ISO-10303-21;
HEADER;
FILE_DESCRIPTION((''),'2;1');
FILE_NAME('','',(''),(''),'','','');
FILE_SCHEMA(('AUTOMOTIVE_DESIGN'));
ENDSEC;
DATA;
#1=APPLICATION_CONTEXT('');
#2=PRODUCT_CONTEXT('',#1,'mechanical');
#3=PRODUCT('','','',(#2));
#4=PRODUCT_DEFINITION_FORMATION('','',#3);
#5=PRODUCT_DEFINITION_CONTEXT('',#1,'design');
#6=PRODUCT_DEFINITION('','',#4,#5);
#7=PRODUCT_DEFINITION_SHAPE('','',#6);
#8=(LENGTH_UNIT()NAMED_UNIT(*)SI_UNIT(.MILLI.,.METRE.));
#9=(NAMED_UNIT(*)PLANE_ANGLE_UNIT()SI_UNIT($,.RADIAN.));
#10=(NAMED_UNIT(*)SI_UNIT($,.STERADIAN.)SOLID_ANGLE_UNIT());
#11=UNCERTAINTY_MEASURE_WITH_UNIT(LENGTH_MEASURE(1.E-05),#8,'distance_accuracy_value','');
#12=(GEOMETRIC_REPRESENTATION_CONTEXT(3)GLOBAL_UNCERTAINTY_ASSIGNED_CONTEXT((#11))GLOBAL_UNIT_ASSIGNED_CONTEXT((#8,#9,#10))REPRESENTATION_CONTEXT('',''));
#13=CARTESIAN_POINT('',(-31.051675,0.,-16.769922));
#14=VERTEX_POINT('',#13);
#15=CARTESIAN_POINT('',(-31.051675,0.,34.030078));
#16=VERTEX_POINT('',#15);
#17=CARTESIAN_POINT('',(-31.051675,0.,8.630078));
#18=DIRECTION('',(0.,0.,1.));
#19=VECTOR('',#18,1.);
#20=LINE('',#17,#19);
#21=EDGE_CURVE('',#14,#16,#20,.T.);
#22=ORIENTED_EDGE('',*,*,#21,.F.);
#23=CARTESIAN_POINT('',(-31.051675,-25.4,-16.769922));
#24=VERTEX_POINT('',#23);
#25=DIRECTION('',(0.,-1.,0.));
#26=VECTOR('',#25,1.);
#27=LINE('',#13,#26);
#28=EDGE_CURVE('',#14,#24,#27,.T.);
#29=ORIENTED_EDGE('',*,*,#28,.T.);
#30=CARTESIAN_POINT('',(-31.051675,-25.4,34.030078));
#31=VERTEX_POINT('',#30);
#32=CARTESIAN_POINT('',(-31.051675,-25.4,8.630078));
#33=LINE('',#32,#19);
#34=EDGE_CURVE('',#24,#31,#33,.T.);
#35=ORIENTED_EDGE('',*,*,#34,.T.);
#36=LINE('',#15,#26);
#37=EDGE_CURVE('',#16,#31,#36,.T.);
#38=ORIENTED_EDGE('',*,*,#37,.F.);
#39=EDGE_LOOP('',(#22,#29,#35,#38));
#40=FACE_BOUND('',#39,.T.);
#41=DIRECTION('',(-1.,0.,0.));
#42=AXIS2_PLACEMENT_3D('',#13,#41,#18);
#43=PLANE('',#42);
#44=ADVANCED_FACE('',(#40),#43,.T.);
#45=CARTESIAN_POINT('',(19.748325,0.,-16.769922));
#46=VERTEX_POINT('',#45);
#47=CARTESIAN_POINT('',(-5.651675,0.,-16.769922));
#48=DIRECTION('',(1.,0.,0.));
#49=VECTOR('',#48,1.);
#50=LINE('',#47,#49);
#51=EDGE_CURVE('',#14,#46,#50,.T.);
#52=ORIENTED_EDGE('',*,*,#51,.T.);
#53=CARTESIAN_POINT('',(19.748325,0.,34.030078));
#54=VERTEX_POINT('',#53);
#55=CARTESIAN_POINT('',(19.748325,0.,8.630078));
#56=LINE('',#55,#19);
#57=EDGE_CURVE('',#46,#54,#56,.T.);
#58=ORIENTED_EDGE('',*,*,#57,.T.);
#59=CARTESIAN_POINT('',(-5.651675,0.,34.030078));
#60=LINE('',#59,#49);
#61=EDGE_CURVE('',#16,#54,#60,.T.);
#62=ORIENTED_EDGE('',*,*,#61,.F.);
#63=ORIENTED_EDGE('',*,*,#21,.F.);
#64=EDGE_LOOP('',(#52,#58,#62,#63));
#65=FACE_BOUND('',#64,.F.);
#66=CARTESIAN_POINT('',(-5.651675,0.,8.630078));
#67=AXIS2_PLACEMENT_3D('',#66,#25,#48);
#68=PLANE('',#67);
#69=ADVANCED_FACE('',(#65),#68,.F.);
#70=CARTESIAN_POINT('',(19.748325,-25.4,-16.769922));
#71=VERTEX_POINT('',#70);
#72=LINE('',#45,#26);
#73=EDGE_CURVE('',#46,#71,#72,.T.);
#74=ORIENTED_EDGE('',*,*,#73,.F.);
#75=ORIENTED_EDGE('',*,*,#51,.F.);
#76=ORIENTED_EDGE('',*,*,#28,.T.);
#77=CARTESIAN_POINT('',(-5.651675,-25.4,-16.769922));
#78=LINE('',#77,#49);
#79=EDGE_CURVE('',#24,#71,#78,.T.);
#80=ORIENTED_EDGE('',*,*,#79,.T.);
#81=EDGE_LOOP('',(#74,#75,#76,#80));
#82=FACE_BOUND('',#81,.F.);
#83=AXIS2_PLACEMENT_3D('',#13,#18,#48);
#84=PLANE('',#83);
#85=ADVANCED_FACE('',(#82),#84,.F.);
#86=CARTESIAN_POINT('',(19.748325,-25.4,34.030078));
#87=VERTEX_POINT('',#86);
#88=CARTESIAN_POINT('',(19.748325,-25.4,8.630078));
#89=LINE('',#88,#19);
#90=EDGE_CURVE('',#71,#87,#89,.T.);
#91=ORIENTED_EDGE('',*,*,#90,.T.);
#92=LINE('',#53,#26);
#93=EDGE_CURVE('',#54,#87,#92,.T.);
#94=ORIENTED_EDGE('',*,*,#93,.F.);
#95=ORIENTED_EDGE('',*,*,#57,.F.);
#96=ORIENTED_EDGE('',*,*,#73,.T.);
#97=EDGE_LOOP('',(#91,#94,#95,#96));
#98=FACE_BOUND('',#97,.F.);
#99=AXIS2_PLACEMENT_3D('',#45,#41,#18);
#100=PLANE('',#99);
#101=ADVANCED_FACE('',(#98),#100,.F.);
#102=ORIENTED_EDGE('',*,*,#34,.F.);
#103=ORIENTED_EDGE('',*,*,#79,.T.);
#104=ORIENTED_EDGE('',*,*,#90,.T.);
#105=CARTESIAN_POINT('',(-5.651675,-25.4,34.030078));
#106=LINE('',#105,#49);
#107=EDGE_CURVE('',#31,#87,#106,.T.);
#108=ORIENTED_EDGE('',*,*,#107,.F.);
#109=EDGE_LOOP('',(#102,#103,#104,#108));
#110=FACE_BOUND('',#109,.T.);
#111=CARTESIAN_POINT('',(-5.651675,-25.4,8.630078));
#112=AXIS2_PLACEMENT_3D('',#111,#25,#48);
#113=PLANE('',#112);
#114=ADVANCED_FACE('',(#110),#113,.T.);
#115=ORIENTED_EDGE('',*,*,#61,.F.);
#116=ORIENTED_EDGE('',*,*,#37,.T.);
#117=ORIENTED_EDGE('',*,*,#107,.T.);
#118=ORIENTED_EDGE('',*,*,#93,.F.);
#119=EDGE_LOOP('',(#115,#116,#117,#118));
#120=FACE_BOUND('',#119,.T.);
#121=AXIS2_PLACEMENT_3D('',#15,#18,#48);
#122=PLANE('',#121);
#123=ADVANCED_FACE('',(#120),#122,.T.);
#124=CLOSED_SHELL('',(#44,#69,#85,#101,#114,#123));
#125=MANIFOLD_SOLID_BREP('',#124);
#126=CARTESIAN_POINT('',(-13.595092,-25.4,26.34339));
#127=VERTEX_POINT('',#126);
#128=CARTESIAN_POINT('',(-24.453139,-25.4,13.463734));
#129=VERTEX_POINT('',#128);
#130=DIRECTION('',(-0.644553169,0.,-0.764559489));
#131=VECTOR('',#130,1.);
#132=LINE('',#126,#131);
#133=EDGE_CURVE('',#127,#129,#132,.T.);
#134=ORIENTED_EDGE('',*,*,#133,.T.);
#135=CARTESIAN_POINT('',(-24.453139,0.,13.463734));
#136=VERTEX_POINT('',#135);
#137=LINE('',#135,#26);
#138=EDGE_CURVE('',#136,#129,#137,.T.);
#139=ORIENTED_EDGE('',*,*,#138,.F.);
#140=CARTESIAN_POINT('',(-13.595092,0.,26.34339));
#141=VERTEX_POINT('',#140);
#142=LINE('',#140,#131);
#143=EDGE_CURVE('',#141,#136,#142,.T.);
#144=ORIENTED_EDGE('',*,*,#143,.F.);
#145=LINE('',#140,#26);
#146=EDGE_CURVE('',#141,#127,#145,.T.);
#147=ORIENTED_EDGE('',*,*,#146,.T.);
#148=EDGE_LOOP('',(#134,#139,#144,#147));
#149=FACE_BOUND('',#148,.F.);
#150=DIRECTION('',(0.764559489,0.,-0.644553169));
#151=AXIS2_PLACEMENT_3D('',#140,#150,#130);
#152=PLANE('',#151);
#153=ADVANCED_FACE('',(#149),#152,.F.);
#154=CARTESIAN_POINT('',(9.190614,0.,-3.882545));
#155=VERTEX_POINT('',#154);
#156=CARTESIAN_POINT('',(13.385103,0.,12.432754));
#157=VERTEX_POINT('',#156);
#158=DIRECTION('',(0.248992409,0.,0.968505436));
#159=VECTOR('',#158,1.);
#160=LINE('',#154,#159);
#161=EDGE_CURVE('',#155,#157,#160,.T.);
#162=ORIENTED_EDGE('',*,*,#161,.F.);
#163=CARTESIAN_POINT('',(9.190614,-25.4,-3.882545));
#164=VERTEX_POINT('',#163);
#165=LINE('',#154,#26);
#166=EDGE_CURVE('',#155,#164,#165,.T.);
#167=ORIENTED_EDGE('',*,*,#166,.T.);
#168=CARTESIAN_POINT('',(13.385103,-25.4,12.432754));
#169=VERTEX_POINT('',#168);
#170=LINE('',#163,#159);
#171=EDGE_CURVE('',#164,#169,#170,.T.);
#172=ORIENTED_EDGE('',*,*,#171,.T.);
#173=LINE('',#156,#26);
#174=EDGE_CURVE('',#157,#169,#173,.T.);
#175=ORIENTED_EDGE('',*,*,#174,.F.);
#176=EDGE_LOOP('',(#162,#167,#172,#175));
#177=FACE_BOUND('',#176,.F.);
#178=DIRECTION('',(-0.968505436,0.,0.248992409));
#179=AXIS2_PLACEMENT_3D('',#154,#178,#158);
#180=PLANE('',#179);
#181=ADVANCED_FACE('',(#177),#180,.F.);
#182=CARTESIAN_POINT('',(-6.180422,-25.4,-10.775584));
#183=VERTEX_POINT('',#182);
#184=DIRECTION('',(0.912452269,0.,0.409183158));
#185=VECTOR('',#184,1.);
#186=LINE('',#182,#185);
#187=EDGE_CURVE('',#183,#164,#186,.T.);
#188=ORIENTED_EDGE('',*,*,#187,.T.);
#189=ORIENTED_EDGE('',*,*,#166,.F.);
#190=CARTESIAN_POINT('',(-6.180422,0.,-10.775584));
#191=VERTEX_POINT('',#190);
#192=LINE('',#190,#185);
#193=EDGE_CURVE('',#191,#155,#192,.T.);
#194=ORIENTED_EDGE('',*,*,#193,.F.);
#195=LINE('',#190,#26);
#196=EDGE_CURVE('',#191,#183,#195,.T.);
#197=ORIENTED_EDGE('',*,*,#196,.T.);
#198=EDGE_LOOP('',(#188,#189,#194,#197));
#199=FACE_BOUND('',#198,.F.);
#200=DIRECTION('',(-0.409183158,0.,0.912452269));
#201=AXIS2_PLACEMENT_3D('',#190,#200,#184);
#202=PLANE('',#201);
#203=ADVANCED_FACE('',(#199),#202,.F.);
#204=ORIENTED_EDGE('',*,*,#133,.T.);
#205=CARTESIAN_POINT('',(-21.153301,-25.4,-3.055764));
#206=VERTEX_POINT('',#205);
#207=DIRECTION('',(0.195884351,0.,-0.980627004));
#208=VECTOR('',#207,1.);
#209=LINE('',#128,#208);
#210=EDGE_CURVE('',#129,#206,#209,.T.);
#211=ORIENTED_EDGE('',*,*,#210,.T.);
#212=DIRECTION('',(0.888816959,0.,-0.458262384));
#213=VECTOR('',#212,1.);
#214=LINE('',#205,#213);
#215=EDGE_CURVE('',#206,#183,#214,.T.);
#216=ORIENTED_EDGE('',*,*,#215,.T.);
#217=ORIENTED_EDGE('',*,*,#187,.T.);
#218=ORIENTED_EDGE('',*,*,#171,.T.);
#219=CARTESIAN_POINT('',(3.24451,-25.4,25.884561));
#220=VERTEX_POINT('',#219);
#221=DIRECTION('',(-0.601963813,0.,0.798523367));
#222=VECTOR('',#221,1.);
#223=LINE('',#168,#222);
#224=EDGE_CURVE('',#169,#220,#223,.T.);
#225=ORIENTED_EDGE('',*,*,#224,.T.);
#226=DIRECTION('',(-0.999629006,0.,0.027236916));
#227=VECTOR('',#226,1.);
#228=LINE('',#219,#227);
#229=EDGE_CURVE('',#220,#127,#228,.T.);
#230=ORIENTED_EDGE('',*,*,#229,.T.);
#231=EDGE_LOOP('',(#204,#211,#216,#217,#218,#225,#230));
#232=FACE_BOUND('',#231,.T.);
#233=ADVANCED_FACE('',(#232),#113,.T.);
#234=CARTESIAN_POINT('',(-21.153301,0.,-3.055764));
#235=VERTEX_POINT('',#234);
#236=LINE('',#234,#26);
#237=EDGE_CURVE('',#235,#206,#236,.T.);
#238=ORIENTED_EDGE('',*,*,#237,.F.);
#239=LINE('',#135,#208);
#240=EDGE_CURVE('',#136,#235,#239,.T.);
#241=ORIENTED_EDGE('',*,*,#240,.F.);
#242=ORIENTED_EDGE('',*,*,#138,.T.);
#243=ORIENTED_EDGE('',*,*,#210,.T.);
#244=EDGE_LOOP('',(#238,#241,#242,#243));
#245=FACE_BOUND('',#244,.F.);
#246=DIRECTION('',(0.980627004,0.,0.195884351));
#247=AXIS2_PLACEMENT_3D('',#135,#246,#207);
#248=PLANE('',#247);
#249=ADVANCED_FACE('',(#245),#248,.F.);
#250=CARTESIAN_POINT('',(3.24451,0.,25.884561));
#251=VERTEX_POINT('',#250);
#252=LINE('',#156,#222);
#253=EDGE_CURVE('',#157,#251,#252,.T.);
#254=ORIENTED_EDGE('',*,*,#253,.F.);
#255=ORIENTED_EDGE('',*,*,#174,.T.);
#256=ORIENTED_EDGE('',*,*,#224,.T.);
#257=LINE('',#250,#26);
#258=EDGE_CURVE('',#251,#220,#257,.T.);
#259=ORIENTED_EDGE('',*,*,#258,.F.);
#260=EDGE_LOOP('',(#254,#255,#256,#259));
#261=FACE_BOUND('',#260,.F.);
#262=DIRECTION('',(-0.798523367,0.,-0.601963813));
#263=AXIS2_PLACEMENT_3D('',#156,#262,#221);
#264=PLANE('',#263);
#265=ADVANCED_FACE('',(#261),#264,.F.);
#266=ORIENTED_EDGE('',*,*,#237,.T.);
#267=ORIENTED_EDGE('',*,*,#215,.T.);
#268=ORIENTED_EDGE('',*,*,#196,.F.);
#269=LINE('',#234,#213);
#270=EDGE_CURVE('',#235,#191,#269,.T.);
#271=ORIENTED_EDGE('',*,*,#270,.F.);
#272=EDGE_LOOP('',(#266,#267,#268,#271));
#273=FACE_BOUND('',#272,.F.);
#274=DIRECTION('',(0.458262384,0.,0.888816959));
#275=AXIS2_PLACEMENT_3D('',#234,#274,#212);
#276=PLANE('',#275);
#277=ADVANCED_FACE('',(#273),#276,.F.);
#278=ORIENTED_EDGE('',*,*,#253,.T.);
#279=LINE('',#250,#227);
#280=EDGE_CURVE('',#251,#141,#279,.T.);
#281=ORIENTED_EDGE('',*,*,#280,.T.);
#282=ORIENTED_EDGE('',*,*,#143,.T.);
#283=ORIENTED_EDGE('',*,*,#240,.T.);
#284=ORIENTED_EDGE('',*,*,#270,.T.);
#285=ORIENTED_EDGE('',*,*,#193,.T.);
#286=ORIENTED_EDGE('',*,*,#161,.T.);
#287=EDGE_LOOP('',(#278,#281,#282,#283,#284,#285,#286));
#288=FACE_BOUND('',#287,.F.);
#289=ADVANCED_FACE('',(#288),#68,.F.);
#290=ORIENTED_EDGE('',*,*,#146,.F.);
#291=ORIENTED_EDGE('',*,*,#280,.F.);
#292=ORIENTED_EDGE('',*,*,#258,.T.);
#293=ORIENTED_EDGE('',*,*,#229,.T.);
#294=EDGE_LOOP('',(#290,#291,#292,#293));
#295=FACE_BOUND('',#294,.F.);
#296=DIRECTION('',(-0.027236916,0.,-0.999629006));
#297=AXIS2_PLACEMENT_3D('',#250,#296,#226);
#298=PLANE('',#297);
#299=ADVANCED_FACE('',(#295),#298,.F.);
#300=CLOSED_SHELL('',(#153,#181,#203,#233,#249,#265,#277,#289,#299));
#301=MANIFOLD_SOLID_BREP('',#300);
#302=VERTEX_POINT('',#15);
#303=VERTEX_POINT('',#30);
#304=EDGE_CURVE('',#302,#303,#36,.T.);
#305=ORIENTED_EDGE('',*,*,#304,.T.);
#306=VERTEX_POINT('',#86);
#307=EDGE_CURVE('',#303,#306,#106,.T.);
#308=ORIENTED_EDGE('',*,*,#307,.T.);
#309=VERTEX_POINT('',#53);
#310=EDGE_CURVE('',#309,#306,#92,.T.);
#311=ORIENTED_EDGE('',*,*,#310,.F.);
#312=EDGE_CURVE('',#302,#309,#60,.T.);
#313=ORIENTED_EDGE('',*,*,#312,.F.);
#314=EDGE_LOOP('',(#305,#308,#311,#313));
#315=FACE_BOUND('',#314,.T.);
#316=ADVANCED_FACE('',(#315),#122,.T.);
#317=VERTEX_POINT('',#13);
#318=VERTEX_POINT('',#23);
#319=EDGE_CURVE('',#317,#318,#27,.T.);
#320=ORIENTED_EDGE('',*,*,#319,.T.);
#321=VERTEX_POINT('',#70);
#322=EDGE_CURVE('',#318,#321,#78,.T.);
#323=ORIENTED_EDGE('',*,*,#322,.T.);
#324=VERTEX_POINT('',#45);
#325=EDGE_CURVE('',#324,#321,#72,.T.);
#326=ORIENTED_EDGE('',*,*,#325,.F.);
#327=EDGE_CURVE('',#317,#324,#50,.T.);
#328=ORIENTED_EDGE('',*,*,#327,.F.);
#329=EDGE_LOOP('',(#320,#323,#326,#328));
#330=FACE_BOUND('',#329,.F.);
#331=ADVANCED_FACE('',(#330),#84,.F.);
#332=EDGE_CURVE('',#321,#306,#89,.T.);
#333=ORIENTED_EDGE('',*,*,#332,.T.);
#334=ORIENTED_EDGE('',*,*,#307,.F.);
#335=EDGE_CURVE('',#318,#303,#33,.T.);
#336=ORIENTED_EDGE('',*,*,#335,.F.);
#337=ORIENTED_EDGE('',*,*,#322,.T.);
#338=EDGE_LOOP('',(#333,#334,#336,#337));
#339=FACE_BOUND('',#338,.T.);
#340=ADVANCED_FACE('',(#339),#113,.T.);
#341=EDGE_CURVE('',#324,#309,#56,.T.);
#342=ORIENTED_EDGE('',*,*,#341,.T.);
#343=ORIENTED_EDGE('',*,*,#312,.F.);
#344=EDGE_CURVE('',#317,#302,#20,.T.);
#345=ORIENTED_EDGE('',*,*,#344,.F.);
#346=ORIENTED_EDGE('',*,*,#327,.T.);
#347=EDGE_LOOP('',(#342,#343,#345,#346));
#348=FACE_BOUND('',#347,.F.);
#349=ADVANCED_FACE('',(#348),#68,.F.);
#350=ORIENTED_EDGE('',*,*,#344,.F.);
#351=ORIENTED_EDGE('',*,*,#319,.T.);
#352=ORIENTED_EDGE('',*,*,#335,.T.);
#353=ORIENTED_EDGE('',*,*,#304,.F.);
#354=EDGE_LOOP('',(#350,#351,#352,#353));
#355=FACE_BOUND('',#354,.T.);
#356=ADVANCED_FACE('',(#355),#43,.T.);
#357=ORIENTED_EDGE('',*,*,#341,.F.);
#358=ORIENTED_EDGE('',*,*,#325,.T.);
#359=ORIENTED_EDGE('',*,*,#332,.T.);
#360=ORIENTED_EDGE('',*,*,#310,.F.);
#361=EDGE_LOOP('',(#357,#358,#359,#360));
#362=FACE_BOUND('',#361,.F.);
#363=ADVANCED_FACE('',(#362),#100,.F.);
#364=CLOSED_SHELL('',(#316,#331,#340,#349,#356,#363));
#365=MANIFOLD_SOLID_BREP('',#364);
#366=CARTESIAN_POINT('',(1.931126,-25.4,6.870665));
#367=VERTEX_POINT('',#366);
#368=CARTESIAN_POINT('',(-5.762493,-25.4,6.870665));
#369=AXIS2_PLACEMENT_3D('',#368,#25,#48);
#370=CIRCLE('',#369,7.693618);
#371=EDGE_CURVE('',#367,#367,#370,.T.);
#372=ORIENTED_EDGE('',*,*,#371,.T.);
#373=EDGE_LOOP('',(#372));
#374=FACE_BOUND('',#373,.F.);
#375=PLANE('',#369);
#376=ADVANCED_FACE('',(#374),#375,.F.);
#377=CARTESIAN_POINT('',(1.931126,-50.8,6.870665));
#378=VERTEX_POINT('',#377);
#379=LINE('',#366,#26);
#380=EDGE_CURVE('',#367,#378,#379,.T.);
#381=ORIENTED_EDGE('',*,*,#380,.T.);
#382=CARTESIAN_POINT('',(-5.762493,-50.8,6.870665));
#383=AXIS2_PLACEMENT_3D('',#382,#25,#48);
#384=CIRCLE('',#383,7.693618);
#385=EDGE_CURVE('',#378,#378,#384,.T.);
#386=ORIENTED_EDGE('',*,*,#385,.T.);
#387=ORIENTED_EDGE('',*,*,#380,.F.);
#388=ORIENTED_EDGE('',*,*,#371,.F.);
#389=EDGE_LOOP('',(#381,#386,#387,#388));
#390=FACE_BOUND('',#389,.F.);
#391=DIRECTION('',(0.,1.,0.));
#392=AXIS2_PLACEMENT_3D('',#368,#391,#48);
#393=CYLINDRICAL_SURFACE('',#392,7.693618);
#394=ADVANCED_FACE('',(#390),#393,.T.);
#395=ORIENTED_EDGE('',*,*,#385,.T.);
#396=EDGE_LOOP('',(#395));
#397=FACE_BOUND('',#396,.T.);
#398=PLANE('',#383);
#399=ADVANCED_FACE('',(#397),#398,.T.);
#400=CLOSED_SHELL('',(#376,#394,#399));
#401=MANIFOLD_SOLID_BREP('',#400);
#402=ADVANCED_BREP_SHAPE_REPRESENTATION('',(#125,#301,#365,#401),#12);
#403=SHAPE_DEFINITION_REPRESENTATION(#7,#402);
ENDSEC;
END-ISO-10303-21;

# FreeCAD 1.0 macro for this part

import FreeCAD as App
import Part
import Sketcher
Q = App.Units.Quantity

doc = App.newDocument("Part")
params = doc.addObject("Spreadsheet::Sheet", "Params")
for row, (alias, value) in enumerate([
    ("sketch1_width", "2 in"),
    ("pad1_length", "1 in"),
    ("sketch2_width", "2 in"),
    ("pad2_length", "1 in"),
    ("pad3_length", "1 in"),
    ("pad4_length", "1 in"),
], start=1):
    params.set(f"A{row}", alias)
    params.set(f"B{row}", "=" + value)
    params.setAlias(f"B{row}", alias)

body = doc.addObject("PartDesign::Body", "Body")

# Sketch on XZ plane
sketch1 = doc.addObject("Sketcher::SketchObject", "Sketch")
body.addObject(sketch1)
sketch1.AttachmentSupport = (doc.XZ_Plane, [""])
sketch1.MapMode = "FlatFace"
sketch1.addGeometry(Part.LineSegment(App.Vector(-31, 34, 0), App.Vector(-31, -17, 0)), False)
sketch1.addGeometry(Part.LineSegment(App.Vector(-31, -17, 0), App.Vector(20, -17, 0)), False)
sketch1.addGeometry(Part.LineSegment(App.Vector(20, -17, 0), App.Vector(20, 34, 0)), False)
sketch1.addGeometry(Part.LineSegment(App.Vector(20, 34, 0), App.Vector(-31, 34, 0)), False)
sketch1.addConstraint(Sketcher.Constraint("Coincident", 0, 2, 1, 1))
sketch1.addConstraint(Sketcher.Constraint("Coincident", 1, 2, 2, 1))
sketch1.addConstraint(Sketcher.Constraint("Coincident", 2, 2, 3, 1))
sketch1.addConstraint(Sketcher.Constraint("Coincident", 3, 2, 0, 1))
sketch1.addConstraint(Sketcher.Constraint("Vertical", 0))
sketch1.addConstraint(Sketcher.Constraint("Horizontal", 1))
sketch1.addConstraint(Sketcher.Constraint("Vertical", 2))
sketch1.addConstraint(Sketcher.Constraint("Horizontal", 3))
sketch1.addConstraint(Sketcher.Constraint("Equal", 3, 0))
sketch1.addConstraint(Sketcher.Constraint("DistanceX", 1, 1, 1, 2, Q("2 in")))
sketch1.addConstraint(Sketcher.Constraint("DistanceX", 0, 2, -1, 1, Q("31.051675 mm")))
sketch1.addConstraint(Sketcher.Constraint("DistanceY", 0, 2, -1, 1, Q("16.769922 mm")))
sketch1.setExpression("Constraints[9]", "Params.sketch1_width")
pad1 = doc.addObject("PartDesign::Pad", "Pad")
body.addObject(pad1)
pad1.Profile = sketch1
pad1.setExpression("Length", "Params.pad1_length")
body2 = doc.addObject("PartDesign::Body", "Body001")

# Sketch on XZ plane
sketch2 = doc.addObject("Sketcher::SketchObject", "Sketch001")
body2.addObject(sketch2)
sketch2.AttachmentSupport = (doc.getObject("XZ_Plane001"), [""])
sketch2.MapMode = "FlatFace"
sketch2.addGeometry(Part.LineSegment(App.Vector(-31, 34, 0), App.Vector(-31, -17, 0)), False)
sketch2.addGeometry(Part.LineSegment(App.Vector(-31, -17, 0), App.Vector(20, -17, 0)), False)
sketch2.addGeometry(Part.LineSegment(App.Vector(20, -17, 0), App.Vector(20, 34, 0)), False)
sketch2.addGeometry(Part.LineSegment(App.Vector(20, 34, 0), App.Vector(-31, 34, 0)), False)
sketch2.addConstraint(Sketcher.Constraint("Coincident", 0, 2, 1, 1))
sketch2.addConstraint(Sketcher.Constraint("Coincident", 1, 2, 2, 1))
sketch2.addConstraint(Sketcher.Constraint("Coincident", 2, 2, 3, 1))
sketch2.addConstraint(Sketcher.Constraint("Coincident", 3, 2, 0, 1))
sketch2.addConstraint(Sketcher.Constraint("Vertical", 0))
sketch2.addConstraint(Sketcher.Constraint("Horizontal", 1))
sketch2.addConstraint(Sketcher.Constraint("Vertical", 2))
sketch2.addConstraint(Sketcher.Constraint("Horizontal", 3))
sketch2.addConstraint(Sketcher.Constraint("Equal", 3, 0))
sketch2.addConstraint(Sketcher.Constraint("DistanceX", 1, 1, 1, 2, Q("2 in")))
sketch2.addConstraint(Sketcher.Constraint("DistanceX", 0, 2, -1, 1, Q("31.051675 mm")))
sketch2.addConstraint(Sketcher.Constraint("DistanceY", 0, 2, -1, 1, Q("16.769922 mm")))
sketch2.setExpression("Constraints[9]", "Params.sketch2_width")
pad2 = doc.addObject("PartDesign::Pad", "Pad001")
body2.addObject(pad2)
pad2.Profile = sketch2
pad2.setExpression("Length", "Params.pad2_length")
body3 = doc.addObject("PartDesign::Body", "Body002")

# Sketch on XZ plane
sketch3 = doc.addObject("Sketcher::SketchObject", "Sketch002")
body3.addObject(sketch3)
sketch3.AttachmentSupport = (doc.getObject("XZ_Plane002"), [""])
sketch3.MapMode = "FlatFace"
sketch3.addGeometry(Part.LineSegment(App.Vector(13, 12, 0), App.Vector(3, 26, 0)), False)
sketch3.addGeometry(Part.LineSegment(App.Vector(3, 26, 0), App.Vector(-14, 26, 0)), False)
sketch3.addGeometry(Part.LineSegment(App.Vector(-14, 26, 0), App.Vector(-24, 13, 0)), False)
sketch3.addGeometry(Part.LineSegment(App.Vector(-24, 13, 0), App.Vector(-21, -3, 0)), False)
sketch3.addGeometry(Part.LineSegment(App.Vector(-21, -3, 0), App.Vector(-6, -11, 0)), False)
sketch3.addGeometry(Part.LineSegment(App.Vector(-6, -11, 0), App.Vector(9, -4, 0)), False)
sketch3.addGeometry(Part.LineSegment(App.Vector(9, -4, 0), App.Vector(13, 12, 0)), False)
sketch3.addConstraint(Sketcher.Constraint("Coincident", 0, 2, 1, 1))
sketch3.addConstraint(Sketcher.Constraint("Coincident", 1, 2, 2, 1))
sketch3.addConstraint(Sketcher.Constraint("Coincident", 2, 2, 3, 1))
sketch3.addConstraint(Sketcher.Constraint("Coincident", 3, 2, 4, 1))
sketch3.addConstraint(Sketcher.Constraint("Coincident", 4, 2, 5, 1))
sketch3.addConstraint(Sketcher.Constraint("Coincident", 5, 2, 6, 1))
sketch3.addConstraint(Sketcher.Constraint("Coincident", 6, 2, 0, 1))
sketch3.addConstraint(Sketcher.Constraint("Equal", 0, 1))
sketch3.addConstraint(Sketcher.Constraint("Equal", 1, 2))
sketch3.addConstraint(Sketcher.Constraint("Equal", 2, 3))
sketch3.addConstraint(Sketcher.Constraint("Equal", 3, 4))
sketch3.addConstraint(Sketcher.Constraint("Equal", 4, 5))
sketch3.addConstraint(Sketcher.Constraint("Equal", 5, 6))
sketch3.addConstraint(Sketcher.Constraint("DistanceX", 3, 2, -1, 1, Q("21.153301 mm")))
sketch3.addConstraint(Sketcher.Constraint("DistanceY", 5, 2, 6, 2, Q("16.315299 mm")))
sketch3.addConstraint(Sketcher.Constraint("Distance", 0, Q("16.845852 mm")))
sketch3.addConstraint(Sketcher.Constraint("DistanceX", -1, 1, 0, 2, Q("3.24451 mm")))
sketch3.addConstraint(Sketcher.Constraint("DistanceY", -1, 1, 0, 2, Q("25.884561 mm")))
sketch3.addConstraint(Sketcher.Constraint("DistanceY", -1, 1, 1, 2, Q("26.34339 mm")))
sketch3.addConstraint(Sketcher.Constraint("DistanceX", 2, 2, -1, 1, Q("24.453139 mm")))
sketch3.addConstraint(Sketcher.Constraint("DistanceX", 4, 2, -1, 1, Q("6.180422 mm")))
pad3 = doc.addObject("PartDesign::Pad", "Pad002")
body3.addObject(pad3)
pad3.Profile = sketch3
pad3.setExpression("Length", "Params.pad3_length")
body4 = doc.addObject("PartDesign::Body", "Body003")

# Sketch on XZ plane
sketch4 = doc.addObject("Sketcher::SketchObject", "Sketch003")
body4.addObject(sketch4)
sketch4.AttachmentSupport = (doc.getObject("XZ_Plane003"), [""])
sketch4.MapMode = "FlatFace"
sketch4.AttachmentOffset = App.Placement(App.Vector(0, 0, 1 * 25.4), App.Rotation())
sketch4.addGeometry(Part.Circle(App.Vector(-6, 7, 0), App.Vector(0, 0, 1), 8), False)
sketch4.addConstraint(Sketcher.Constraint("Diameter", 0, Q("15.387237 mm")))
sketch4.addConstraint(Sketcher.Constraint("DistanceX", 0, 3, -1, 1, Q("5.762493 mm")))
sketch4.addConstraint(Sketcher.Constraint("DistanceY", -1, 1, 0, 3, Q("6.870665 mm")))
pad4 = doc.addObject("PartDesign::Pad", "Pad003")
body4.addObject(pad4)
pad4.Profile = sketch4
pad4.setExpression("Length", "Params.pad4_length")

doc.recompute()
